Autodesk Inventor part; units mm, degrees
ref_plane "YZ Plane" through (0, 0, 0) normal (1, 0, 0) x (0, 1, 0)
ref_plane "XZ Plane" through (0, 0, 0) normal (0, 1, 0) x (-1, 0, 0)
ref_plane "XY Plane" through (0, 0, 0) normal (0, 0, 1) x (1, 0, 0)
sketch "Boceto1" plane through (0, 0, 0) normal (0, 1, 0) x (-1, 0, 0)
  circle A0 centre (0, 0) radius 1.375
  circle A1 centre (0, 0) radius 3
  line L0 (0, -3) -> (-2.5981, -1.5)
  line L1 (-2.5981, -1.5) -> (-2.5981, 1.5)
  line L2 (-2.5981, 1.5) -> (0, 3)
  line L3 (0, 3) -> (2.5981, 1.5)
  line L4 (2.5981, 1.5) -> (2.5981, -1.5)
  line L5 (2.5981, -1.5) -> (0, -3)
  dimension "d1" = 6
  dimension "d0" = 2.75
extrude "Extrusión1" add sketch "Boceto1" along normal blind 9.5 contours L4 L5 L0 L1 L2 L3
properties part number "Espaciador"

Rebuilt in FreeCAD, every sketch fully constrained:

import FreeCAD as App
import Part
import Sketcher
from FreeCAD import Vector
Q = App.Units.Quantity


def add_polygon(sketch, points):
    """Adds a closed chain of lines whose ends are joined by coincident constraints."""
    first, n = sketch.GeometryCount, len(points)
    for a, b in zip(points, points[1:] + points[:1]):
        sketch.addGeometry(Part.LineSegment(App.Vector(*a, 0), App.Vector(*b, 0)), False)
    for i in range(n):
        sketch.addConstraint(Sketcher.Constraint("Coincident", first + i, 2, first + (i + 1) % n, 1))

doc = App.newDocument("Part")
params = doc.addObject("Spreadsheet::Sheet", "Params")
for row, (alias, value) in enumerate([
    ("sketch1_diameter", "2.75 mm"),
    ("sketch1_height", "3 mm"),
    ("pad1_length", "9.5 mm"),
], start=1):
    params.set(f"A{row}", alias)
    params.set(f"B{row}", "=" + value)
    params.setAlias(f"B{row}", alias)

body = doc.addObject("PartDesign::Body", "Body")

# Sketch on XZ plane
sketch1 = doc.addObject("Sketcher::SketchObject", "Sketch")
body.addObject(sketch1)
sketch1.AttachmentSupport = (doc.XZ_Plane, [""])
sketch1.MapMode = "FlatFace"
add_polygon(sketch1, [(-2.6, -1.5), (-2.6, 1.5), (0, 3), (2.6, 1.5), (2.6, -1.5), (0, -3)])  # lines 0-5
sketch1.addGeometry(Part.Circle(Vector(0, 0, 0), Vector(0, 0, 1), 1.4), False)  # 6
sketch1.addConstraint([
    Sketcher.Constraint("Vertical", 0),
    Sketcher.Constraint("Vertical", 3),
    Sketcher.Constraint("Coincident", 6, 3, -1, 1),
    Sketcher.Constraint("Symmetric", 0, 2, 3, 2, -1, 1),
    Sketcher.Constraint("Symmetric", 1, 2, 4, 2, -1, 1),
    Sketcher.Constraint("PointOnObject", 1, 2, -2),
    Sketcher.Constraint("Parallel", 2, 5),
    Sketcher.Constraint("Horizontal", 0, 2, 2, 2),
    Sketcher.Constraint("Diameter", 6, 2.75),
    Sketcher.Constraint("DistanceY", 4, 2, 1, 2, 6.0),
    Sketcher.Constraint("DistanceY", 0, 1, 0, 2, 3.0),
    Sketcher.Constraint("Angle", 1, Q("29.9998 deg")),
])
sketch1.setExpression("Constraints[14]", "Params.sketch1_diameter")
sketch1.setExpression("Constraints[16]", "Params.sketch1_height")
pad1 = doc.addObject("PartDesign::Pad", "Pad")
body.addObject(pad1)
pad1.Profile = sketch1
pad1.setExpression("Length", "Params.pad1_length")
pad1.Reversed = True

doc.recompute()
